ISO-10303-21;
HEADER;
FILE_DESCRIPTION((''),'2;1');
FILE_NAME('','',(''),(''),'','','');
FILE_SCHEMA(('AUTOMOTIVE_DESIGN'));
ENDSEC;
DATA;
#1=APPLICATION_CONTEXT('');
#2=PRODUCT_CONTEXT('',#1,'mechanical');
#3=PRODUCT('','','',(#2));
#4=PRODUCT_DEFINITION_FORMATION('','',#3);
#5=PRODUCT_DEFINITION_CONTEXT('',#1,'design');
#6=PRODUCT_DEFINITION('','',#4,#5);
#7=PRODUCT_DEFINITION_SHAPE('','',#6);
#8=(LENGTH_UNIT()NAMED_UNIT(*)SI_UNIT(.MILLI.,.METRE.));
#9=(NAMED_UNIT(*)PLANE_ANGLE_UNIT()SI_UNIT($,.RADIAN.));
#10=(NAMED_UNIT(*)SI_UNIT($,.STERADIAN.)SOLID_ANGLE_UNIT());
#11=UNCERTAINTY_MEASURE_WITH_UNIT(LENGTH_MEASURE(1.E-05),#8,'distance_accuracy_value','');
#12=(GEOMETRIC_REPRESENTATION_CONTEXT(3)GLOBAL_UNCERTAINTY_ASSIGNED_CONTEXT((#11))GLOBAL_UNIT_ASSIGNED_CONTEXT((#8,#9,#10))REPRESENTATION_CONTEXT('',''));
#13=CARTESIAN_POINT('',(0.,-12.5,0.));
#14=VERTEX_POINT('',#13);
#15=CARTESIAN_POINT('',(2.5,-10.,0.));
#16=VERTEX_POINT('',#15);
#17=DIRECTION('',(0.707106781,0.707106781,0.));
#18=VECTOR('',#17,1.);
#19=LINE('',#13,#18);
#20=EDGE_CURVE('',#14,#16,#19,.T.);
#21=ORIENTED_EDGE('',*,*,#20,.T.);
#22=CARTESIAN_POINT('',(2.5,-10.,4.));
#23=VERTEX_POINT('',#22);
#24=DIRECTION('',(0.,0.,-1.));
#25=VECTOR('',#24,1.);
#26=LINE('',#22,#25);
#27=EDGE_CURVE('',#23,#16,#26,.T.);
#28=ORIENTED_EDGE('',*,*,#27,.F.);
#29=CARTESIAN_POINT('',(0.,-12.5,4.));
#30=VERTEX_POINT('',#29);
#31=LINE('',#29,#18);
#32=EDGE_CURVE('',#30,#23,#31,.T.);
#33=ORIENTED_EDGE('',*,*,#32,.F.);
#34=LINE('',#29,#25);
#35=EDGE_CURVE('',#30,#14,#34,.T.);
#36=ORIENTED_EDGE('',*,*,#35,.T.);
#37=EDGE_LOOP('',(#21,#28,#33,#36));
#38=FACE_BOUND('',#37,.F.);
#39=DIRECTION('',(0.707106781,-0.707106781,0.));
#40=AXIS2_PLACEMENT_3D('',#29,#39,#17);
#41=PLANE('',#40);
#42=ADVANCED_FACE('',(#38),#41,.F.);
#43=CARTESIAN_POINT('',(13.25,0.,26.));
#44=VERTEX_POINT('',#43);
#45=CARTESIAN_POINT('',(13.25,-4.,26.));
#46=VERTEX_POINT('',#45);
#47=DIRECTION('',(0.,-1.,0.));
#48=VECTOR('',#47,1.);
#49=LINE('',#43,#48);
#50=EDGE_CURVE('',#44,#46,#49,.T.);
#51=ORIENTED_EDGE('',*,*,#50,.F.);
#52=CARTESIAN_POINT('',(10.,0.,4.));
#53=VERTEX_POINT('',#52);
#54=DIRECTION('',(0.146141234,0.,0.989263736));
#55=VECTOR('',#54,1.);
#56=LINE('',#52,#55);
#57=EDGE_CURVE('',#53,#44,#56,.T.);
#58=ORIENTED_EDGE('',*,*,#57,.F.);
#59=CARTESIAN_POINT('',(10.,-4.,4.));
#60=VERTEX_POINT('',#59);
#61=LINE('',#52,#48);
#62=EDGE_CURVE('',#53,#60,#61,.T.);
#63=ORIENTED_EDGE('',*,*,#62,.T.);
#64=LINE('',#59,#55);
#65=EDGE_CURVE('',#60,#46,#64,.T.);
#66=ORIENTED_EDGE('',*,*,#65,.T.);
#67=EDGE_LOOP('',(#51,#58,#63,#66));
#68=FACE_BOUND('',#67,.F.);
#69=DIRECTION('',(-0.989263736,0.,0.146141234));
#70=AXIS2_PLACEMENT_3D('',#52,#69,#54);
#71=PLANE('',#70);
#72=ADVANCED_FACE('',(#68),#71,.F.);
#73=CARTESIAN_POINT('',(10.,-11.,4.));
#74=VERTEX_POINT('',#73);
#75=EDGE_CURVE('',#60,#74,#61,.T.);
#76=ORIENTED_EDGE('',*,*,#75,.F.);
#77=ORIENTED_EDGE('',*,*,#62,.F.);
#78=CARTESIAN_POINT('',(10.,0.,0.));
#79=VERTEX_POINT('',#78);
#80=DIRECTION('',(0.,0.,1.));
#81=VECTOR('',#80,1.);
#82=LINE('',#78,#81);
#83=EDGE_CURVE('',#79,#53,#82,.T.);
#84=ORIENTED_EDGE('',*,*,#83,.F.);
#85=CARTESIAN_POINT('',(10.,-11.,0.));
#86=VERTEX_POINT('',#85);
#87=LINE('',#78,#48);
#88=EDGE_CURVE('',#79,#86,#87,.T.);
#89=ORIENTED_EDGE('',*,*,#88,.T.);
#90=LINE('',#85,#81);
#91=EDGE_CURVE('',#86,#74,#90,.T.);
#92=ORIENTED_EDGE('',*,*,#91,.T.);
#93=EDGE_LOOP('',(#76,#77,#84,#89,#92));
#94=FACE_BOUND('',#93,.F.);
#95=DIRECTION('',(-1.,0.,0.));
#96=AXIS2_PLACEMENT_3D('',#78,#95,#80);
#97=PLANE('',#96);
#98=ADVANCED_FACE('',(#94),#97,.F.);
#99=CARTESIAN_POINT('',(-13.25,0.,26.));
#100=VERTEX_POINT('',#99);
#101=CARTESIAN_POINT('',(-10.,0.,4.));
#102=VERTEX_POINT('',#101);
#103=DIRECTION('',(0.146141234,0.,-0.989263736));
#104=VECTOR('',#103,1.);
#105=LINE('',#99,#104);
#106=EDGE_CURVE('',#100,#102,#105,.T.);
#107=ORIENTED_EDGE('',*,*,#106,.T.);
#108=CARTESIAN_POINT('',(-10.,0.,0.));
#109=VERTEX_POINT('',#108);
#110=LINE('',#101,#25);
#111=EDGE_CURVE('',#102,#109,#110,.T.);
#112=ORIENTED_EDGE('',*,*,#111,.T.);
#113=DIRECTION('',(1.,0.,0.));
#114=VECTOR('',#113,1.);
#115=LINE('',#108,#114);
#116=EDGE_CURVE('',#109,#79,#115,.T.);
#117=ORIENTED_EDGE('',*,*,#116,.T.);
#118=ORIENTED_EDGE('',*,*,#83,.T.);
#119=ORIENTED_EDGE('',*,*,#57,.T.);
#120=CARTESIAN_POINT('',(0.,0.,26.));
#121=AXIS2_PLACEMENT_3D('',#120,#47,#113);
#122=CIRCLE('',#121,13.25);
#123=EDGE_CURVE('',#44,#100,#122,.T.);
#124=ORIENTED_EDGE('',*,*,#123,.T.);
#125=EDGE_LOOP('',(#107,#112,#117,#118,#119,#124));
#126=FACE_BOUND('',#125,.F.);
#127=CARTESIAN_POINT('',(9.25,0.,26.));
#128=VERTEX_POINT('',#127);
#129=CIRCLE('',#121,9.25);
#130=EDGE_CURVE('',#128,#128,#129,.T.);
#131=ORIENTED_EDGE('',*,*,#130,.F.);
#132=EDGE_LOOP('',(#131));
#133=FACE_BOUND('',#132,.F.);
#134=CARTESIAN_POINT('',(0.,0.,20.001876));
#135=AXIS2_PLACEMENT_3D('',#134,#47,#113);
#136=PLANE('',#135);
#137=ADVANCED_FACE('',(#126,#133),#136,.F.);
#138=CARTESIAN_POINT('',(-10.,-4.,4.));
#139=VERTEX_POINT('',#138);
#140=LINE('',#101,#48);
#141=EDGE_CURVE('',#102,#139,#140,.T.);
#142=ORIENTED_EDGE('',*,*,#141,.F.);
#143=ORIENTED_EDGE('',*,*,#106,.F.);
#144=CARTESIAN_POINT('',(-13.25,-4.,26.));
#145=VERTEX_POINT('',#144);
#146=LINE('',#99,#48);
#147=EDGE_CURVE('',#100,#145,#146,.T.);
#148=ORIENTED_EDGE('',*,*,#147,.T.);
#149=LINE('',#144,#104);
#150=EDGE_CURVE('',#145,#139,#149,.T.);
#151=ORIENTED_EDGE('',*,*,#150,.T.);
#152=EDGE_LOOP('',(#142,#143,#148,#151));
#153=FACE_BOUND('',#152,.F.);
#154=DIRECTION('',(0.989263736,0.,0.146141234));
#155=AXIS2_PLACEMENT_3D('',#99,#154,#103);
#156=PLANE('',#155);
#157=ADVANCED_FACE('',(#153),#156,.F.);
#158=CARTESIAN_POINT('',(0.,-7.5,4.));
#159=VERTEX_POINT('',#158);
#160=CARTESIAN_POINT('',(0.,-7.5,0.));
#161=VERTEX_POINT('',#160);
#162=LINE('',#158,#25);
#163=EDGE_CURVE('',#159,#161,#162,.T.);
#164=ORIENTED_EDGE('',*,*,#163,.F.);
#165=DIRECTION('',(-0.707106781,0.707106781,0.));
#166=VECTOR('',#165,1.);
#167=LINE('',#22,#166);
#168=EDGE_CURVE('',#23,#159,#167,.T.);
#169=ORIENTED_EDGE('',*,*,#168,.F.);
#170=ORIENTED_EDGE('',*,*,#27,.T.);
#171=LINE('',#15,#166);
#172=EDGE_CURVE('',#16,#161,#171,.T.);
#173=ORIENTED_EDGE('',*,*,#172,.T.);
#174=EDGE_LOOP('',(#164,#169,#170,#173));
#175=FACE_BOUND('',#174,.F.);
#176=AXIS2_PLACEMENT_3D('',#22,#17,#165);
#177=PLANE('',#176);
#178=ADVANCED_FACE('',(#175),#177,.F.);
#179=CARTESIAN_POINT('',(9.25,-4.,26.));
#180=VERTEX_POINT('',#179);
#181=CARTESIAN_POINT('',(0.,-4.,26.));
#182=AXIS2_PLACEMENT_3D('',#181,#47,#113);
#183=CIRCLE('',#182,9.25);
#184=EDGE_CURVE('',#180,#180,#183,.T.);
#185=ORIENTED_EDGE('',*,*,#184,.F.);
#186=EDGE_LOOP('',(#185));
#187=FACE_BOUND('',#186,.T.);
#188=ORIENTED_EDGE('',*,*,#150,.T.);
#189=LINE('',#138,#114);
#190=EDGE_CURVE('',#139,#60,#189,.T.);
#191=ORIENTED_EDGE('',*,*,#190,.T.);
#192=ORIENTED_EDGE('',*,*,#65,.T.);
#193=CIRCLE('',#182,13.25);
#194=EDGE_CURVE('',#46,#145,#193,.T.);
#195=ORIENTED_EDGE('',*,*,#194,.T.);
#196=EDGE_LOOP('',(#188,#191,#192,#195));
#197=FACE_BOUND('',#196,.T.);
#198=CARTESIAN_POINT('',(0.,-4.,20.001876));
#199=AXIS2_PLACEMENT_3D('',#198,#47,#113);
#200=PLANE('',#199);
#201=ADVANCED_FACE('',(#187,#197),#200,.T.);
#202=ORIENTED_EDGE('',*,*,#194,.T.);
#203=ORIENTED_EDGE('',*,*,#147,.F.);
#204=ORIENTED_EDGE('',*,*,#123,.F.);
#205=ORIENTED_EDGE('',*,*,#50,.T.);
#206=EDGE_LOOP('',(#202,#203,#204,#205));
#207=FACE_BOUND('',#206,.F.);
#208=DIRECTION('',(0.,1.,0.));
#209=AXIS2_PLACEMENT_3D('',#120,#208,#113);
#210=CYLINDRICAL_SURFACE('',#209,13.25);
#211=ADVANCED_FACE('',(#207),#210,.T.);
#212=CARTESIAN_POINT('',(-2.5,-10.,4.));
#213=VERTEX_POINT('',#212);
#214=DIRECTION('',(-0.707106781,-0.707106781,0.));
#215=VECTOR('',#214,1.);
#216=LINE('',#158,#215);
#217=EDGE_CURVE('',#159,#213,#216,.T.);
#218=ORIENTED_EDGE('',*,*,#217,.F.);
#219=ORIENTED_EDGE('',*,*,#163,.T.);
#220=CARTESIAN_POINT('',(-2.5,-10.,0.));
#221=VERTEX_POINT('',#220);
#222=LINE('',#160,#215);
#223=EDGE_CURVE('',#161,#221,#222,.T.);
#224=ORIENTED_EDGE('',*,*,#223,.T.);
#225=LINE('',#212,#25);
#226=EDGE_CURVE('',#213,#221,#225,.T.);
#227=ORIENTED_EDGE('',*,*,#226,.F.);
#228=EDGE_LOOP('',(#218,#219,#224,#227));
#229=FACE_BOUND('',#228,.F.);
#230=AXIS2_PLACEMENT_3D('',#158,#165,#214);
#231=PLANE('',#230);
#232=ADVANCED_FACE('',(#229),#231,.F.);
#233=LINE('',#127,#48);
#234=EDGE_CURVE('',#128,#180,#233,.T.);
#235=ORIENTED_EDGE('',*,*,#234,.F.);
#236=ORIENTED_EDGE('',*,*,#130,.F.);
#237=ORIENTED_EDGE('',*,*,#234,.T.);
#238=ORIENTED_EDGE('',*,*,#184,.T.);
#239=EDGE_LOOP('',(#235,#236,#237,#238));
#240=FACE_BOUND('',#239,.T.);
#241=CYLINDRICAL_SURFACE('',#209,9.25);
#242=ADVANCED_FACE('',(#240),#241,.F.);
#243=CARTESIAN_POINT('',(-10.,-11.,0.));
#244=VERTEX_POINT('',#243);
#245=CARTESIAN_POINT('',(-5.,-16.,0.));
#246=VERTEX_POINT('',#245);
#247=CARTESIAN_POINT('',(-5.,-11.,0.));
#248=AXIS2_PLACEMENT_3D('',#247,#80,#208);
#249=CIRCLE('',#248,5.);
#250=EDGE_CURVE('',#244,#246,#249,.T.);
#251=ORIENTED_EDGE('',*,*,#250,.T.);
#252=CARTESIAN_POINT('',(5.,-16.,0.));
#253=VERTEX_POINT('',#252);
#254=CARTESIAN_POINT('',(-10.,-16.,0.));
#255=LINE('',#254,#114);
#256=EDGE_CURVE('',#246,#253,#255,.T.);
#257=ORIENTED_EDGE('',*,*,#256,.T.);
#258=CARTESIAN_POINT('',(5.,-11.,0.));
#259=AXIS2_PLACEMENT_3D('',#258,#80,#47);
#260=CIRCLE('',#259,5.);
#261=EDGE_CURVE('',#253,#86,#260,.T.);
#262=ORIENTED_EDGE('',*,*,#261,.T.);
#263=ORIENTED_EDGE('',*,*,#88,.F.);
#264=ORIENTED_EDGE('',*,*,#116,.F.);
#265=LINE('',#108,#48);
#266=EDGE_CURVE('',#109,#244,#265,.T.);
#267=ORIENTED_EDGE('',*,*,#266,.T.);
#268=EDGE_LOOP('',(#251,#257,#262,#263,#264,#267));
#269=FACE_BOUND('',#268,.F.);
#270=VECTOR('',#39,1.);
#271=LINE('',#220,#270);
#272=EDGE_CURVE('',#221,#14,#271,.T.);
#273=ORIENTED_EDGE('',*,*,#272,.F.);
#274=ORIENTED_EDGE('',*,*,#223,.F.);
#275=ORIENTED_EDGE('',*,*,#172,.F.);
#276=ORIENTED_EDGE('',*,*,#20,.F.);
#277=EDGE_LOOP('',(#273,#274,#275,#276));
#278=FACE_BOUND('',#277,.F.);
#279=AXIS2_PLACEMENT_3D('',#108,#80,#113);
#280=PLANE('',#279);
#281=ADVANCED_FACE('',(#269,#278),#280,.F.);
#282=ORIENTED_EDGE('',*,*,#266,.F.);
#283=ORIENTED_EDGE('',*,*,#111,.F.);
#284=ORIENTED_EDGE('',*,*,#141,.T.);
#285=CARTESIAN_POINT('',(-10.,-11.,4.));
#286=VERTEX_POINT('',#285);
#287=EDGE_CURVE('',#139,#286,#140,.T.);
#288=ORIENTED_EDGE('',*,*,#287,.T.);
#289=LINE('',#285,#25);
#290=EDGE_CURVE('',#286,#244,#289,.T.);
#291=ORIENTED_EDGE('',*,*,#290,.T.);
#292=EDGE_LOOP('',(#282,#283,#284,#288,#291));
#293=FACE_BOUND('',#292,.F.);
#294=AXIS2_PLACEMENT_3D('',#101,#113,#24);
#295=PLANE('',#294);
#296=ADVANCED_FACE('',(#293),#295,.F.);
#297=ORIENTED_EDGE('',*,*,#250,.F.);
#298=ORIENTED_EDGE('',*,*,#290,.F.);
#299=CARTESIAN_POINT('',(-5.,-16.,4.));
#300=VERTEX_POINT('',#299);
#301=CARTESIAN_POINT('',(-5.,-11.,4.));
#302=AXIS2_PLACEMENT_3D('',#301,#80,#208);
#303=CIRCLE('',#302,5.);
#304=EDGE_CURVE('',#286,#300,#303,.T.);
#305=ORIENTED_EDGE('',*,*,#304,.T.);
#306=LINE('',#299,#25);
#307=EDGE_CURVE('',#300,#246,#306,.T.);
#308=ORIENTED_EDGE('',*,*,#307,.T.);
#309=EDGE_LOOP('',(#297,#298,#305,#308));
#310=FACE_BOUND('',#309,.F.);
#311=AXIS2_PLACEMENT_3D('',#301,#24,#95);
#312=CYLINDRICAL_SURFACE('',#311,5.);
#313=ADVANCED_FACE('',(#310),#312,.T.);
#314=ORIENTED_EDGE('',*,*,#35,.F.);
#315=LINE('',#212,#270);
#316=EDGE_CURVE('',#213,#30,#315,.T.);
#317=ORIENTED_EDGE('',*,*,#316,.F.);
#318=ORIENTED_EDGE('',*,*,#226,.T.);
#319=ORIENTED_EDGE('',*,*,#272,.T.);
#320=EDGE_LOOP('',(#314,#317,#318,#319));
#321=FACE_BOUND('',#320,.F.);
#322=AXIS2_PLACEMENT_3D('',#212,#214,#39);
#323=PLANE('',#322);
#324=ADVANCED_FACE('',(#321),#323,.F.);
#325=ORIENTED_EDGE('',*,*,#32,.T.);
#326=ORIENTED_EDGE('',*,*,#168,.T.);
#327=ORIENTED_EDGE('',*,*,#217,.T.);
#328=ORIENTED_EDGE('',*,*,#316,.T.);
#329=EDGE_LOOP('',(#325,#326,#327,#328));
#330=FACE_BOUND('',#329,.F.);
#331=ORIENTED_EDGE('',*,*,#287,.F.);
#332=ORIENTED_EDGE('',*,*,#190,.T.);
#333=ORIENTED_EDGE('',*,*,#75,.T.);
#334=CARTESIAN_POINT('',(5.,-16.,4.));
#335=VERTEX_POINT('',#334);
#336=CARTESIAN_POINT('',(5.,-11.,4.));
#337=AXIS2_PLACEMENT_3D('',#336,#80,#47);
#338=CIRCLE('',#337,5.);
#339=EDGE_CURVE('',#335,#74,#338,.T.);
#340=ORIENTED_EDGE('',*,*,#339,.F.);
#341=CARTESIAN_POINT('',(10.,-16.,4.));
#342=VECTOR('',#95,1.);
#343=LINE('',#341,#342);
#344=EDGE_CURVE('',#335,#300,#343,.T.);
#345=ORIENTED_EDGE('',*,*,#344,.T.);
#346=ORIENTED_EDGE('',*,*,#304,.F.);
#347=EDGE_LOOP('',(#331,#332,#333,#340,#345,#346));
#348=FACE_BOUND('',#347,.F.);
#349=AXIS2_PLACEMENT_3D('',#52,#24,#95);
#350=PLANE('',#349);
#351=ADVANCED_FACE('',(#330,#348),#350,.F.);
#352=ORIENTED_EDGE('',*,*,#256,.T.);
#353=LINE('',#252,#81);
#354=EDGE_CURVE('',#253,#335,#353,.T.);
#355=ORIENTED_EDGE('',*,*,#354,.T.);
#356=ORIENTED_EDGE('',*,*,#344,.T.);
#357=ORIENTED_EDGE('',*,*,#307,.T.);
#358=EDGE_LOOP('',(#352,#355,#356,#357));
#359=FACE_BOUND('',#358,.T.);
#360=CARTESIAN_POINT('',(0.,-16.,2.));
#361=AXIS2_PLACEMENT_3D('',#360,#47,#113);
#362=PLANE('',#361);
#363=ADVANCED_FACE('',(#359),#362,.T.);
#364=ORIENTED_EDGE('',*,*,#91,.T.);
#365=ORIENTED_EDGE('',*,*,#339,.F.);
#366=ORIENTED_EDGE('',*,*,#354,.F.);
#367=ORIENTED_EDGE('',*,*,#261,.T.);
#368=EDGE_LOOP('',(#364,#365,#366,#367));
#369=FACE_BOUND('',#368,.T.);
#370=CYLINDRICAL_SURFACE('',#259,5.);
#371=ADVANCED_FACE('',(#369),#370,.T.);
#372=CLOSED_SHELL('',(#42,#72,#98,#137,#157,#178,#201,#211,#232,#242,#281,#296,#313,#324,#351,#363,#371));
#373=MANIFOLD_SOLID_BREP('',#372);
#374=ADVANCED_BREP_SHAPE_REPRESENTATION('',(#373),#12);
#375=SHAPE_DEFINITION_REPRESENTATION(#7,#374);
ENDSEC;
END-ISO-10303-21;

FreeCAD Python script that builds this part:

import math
import FreeCAD as App
import Part
import Sketcher
from FreeCAD import Vector
Q = App.Units.Quantity


def edges_at(feature, points):
    """Names of the edges that pass closest to the given points."""
    edges = feature.Shape.Edges
    near = lambda p: min(range(len(edges)), key=lambda i: edges[i].distToShape(Part.Vertex(*p))[0])
    return sorted({f"Edge{near(p) + 1}" for p in points})

doc = App.newDocument("Part")
body = doc.addObject("PartDesign::Body", "Body")

# Sketch on XZ plane
sketch1 = doc.addObject("Sketcher::SketchObject", "Sketch")
body.addObject(sketch1)
sketch1.AttachmentSupport = (doc.XZ_Plane, [""])
sketch1.MapMode = "FlatFace"
sketch1.addGeometry([
    Part.LineSegment(Vector(-10, 0, 0), Vector(10, 0, 0)),
    Part.LineSegment(Vector(10, 0, 0), Vector(10, 4, 0)),
    Part.LineSegment(Vector(10, 4, 0), Vector(-10, 4, 0)),
    Part.LineSegment(Vector(-10, 4, 0), Vector(-10, 0, 0)),
], False)
sketch1.addConstraint([
    Sketcher.Constraint("Coincident", 0, 2, 1, 1),
    Sketcher.Constraint("Coincident", 1, 2, 2, 1),
    Sketcher.Constraint("Coincident", 2, 2, 3, 1),
    Sketcher.Constraint("Coincident", 3, 2, 0, 1),
    Sketcher.Constraint("Horizontal", 0),
    Sketcher.Constraint("Vertical", 1),
    Sketcher.Constraint("Horizontal", 2),
    Sketcher.Constraint("Vertical", 3),
    Sketcher.Constraint("Symmetric", 0, 2, 3, 2, -1, 1),
    Sketcher.Constraint("DistanceX", 0, 1, 0, 2, Q("20 mm")),
    Sketcher.Constraint("DistanceY", 1, 1, 1, 2, Q("4 mm")),
])
pad1 = doc.addObject("PartDesign::Pad", "Pad")
body.addObject(pad1)
pad1.Profile = sketch1
pad1.Length = 16

# Sketch on XZ plane
sketch2 = doc.addObject("Sketcher::SketchObject", "Sketch001")
body.addObject(sketch2)
sketch2.AttachmentSupport = (doc.XZ_Plane, [""])
sketch2.MapMode = "FlatFace"
sketch2.addGeometry([
    Part.LineSegment(Vector(-13, 26, 0), Vector(-10, 4, 0)),  # 0
    Part.LineSegment(Vector(-10, 4, 0), Vector(10, 4, 0)),  # 1
    Part.LineSegment(Vector(10, 4, 0), Vector(13, 26, 0)),  # 2
    Part.ArcOfCircle(Part.Circle(Vector(0, 26, 0), Vector(0, 0, 1), 13), math.radians(0), math.radians(180)),  # 3
    Part.Circle(Vector(0, 26, 0), Vector(0, 0, 1), 9),  # 4
], False)
sketch2.addConstraint([
    Sketcher.Constraint("Coincident", 0, 2, 1, 1),
    Sketcher.Constraint("Coincident", 1, 2, 2, 1),
    Sketcher.Constraint("Coincident", 2, 2, 3, 1),
    Sketcher.Constraint("Coincident", 3, 2, 0, 1),
    Sketcher.Constraint("Horizontal", 1),
    Sketcher.Constraint("Coincident", 4, 3, 3, 3),
    Sketcher.Constraint("Symmetric", 2, 2, 3, 2, -2),
    Sketcher.Constraint("Horizontal", 4, 3, 2, 2),
    Sketcher.Constraint("Equal", 0, 2),
    Sketcher.Constraint("Diameter", 4, Q("18.5 mm")),
    Sketcher.Constraint("DistanceX", 1, 1, 1, 2, Q("20 mm")),
    Sketcher.Constraint("Radius", 3, Q("13.25 mm")),
    Sketcher.Constraint("DistanceY", -1, 1, 3, 3, Q("26 mm")),
    Sketcher.Constraint("DistanceY", -1, 1, 0, 2, Q("4 mm")),
])
pad2 = doc.addObject("PartDesign::Pad", "Pad001")
body.addObject(pad2)
pad2.Profile = sketch2
pad2.Length = 4
doc.recompute()

fillet = doc.addObject("PartDesign::Fillet", "Fillet")
body.addObject(fillet)
fillet.Base = (pad2, edges_at(pad2, [(-10, -16, 2), (10, -16, 2)]))
fillet.Radius = 5

# Sketch on XY plane
sketch3 = doc.addObject("Sketcher::SketchObject", "Sketch002")
body.addObject(sketch3)
sketch3.AttachmentSupport = (doc.XY_Plane, [""])
sketch3.MapMode = "FlatFace"
sketch3.AttachmentOffset = App.Placement(Vector(0, 0, 4), App.Rotation())
sketch3.addGeometry([
    Part.LineSegment(Vector(0, -7.5, 0), Vector(-2.5, -10, 0)),
    Part.LineSegment(Vector(-2.5, -10, 0), Vector(0, -12.5, 0)),
    Part.LineSegment(Vector(0, -12.5, 0), Vector(2.5, -10, 0)),
    Part.LineSegment(Vector(2.5, -10, 0), Vector(0, -7.5, 0)),
], False)
sketch3.addConstraint([
    Sketcher.Constraint("Coincident", 0, 2, 1, 1),
    Sketcher.Constraint("Coincident", 1, 2, 2, 1),
    Sketcher.Constraint("Coincident", 2, 2, 3, 1),
    Sketcher.Constraint("Coincident", 3, 2, 0, 1),
    Sketcher.Constraint("Symmetric", 0, 2, 2, 2, -2),
    Sketcher.Constraint("PointOnObject", 1, 2, -2),
    Sketcher.Constraint("PointOnObject", 3, 2, -2),
    Sketcher.Constraint("Perpendicular", 0, 1),
    Sketcher.Constraint("Perpendicular", 1, 2),
    Sketcher.Constraint("DistanceY", 0, 2, -1, 1, Q("10 mm")),
    Sketcher.Constraint("DistanceX", 0, 2, 2, 2, Q("5 mm")),
])
pocket1 = doc.addObject("PartDesign::Pocket", "Pocket")
body.addObject(pocket1)
pocket1.Profile = sketch3
pocket1.Length = 4

doc.recompute()
